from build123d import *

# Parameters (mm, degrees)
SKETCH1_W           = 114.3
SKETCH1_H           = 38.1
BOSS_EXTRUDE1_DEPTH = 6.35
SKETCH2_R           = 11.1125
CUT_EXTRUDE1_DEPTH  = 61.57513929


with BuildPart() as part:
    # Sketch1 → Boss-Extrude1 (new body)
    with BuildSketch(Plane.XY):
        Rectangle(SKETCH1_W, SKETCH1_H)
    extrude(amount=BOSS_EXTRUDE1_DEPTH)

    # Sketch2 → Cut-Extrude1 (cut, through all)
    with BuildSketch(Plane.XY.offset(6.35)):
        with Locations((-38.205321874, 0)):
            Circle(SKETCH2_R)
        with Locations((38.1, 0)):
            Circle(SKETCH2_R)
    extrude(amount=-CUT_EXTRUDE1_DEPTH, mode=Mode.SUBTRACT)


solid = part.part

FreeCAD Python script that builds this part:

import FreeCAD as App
import Part
import Sketcher

V = App.Vector
Q = App.Units.Quantity

doc = App.newDocument("Part")
body = doc.addObject("PartDesign::Body", "Body")

# Sketch on XY plane
sketch1 = body.newObject("Sketcher::SketchObject", "Sketch")
sketch1.AttachmentSupport = (doc.getObject("XY_Plane"), [""])
sketch1.MapMode = "FlatFace"
sketch1.addGeometry(Part.LineSegment(V(-57.15, 19.05, 0), V(-57.15, -19.05, 0)), False)
sketch1.addGeometry(Part.LineSegment(V(-57.15, -19.05, 0), V(57.15, -19.05, 0)), False)
sketch1.addGeometry(Part.LineSegment(V(57.15, -19.05, 0), V(57.15, 19.05, 0)), False)
sketch1.addGeometry(Part.LineSegment(V(57.15, 19.05, 0), V(-57.15, 19.05, 0)), False)
sketch1.addConstraint(Sketcher.Constraint("Coincident", 0, 2, 1, 1))
sketch1.addConstraint(Sketcher.Constraint("Coincident", 1, 2, 2, 1))
sketch1.addConstraint(Sketcher.Constraint("Coincident", 2, 2, 3, 1))
sketch1.addConstraint(Sketcher.Constraint("Coincident", 3, 2, 0, 1))
sketch1.addConstraint(Sketcher.Constraint("Vertical", 0))
sketch1.addConstraint(Sketcher.Constraint("Horizontal", 1))
sketch1.addConstraint(Sketcher.Constraint("Vertical", 2))
sketch1.addConstraint(Sketcher.Constraint("Horizontal", 3))
sketch1.addConstraint(Sketcher.Constraint("Symmetric", 0, 2, 2, 2, -1, 1))
sketch1.addConstraint(Sketcher.Constraint("DistanceX", 1, 1, 1, 2, Q("4.5 in")))
sketch1.addConstraint(Sketcher.Constraint("DistanceY", 0, 2, 0, 1, Q("1.5 in")))
pad1 = body.newObject("PartDesign::Pad", "Pad")
pad1.Profile = sketch1
pad1.Length = Q("0.25 in")

# Sketch on XY plane
sketch2 = body.newObject("Sketcher::SketchObject", "Sketch001")
sketch2.AttachmentSupport = (doc.getObject("XY_Plane"), [""])
sketch2.MapMode = "FlatFace"
sketch2.AttachmentOffset = App.Placement(V(0, 0, 0.25 * 25.4), App.Rotation())
sketch2.addGeometry(Part.Circle(V(-38.205322, 0, 0), V(0, 0, 1), 11.1125), False)
sketch2.addGeometry(Part.Circle(V(38.1, 0, 0), V(0, 0, 1), 11.1125), False)
sketch2.addConstraint(Sketcher.Constraint("Equal", 0, 1))
sketch2.addConstraint(Sketcher.Constraint("PointOnObject", 0, 3, -1))
sketch2.addConstraint(Sketcher.Constraint("PointOnObject", 1, 3, -1))
sketch2.addConstraint(Sketcher.Constraint("Diameter", 0, Q("0.875 in")))
sketch2.addConstraint(Sketcher.Constraint("DistanceX", -1, 1, 1, 3, Q("1.5 in")))
sketch2.addConstraint(Sketcher.Constraint("DistanceX", 0, 3, -1, 1, 38.205322))
pocket1 = body.newObject("PartDesign::Pocket", "Pocket")
pocket1.Profile = sketch2
pocket1.Type = "ThroughAll"

doc.recompute()
